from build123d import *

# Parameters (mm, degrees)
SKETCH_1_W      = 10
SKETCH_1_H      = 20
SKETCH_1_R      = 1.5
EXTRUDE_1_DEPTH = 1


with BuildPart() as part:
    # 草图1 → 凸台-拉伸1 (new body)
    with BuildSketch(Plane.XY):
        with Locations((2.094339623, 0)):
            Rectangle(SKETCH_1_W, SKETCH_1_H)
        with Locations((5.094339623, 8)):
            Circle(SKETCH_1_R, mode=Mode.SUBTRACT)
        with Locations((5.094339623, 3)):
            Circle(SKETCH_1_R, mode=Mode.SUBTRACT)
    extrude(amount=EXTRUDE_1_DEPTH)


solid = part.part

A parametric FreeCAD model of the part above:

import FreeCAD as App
import Part
import Sketcher

V = App.Vector

doc = App.newDocument("Part")
body = doc.addObject("PartDesign::Body", "Body")

sketch1 = body.newObject("Sketcher::SketchObject", "Sketch")
sketch1.AttachmentSupport = (doc.getObject("XY_Plane"), [""])
sketch1.MapMode = "FlatFace"
sketch1.addGeometry([
    Part.LineSegment(V(-2.9, 10, 0), V(-2.9, -10, 0)),
    Part.LineSegment(V(-2.9, -10, 0), V(7.1, -10, 0)),
    Part.LineSegment(V(7.1, -10, 0), V(7.1, 10, 0)),
    Part.LineSegment(V(7.1, 10, 0), V(-2.9, 10, 0)),
    Part.Circle(V(5.1, 3, 0), V(0, 0, 1), 1.5),
    Part.Circle(V(5.1, 8, 0), V(0, 0, 1), 1.5),
], False)
sketch1.addConstraint([
    Sketcher.Constraint("Coincident", 0, 2, 1, 1),
    Sketcher.Constraint("Coincident", 1, 2, 2, 1),
    Sketcher.Constraint("Coincident", 2, 2, 3, 1),
    Sketcher.Constraint("Coincident", 3, 2, 0, 1),
    Sketcher.Constraint("Vertical", 0),
    Sketcher.Constraint("Horizontal", 1),
    Sketcher.Constraint("Vertical", 2),
    Sketcher.Constraint("Horizontal", 3),
    Sketcher.Constraint("Equal", 4, 5),
    Sketcher.Constraint("Vertical", 4, 3, 5, 3),
    Sketcher.Constraint("Diameter", 4, 3.0),
    Sketcher.Constraint("DistanceX", 1, 1, 1, 2, 10.0),
    Sketcher.Constraint("DistanceY", 0, 2, 0, 1, 20.0),
    Sketcher.Constraint("DistanceY", -1, 1, 4, 3, 3.0),
    Sketcher.Constraint("DistanceY", -1, 1, 5, 3, 8.0),
    Sketcher.Constraint("DistanceY", 0, 2, -1, 1, 10.0),
    Sketcher.Constraint("DistanceX", 0, 2, 4, 3, 8.0),
    Sketcher.Constraint("DistanceX", -1, 1, 4, 3, 5.09434),
])
pad1 = body.newObject("PartDesign::Pad", "Pad")
pad1.Profile = sketch1
pad1.Length = 1

doc.recompute()
